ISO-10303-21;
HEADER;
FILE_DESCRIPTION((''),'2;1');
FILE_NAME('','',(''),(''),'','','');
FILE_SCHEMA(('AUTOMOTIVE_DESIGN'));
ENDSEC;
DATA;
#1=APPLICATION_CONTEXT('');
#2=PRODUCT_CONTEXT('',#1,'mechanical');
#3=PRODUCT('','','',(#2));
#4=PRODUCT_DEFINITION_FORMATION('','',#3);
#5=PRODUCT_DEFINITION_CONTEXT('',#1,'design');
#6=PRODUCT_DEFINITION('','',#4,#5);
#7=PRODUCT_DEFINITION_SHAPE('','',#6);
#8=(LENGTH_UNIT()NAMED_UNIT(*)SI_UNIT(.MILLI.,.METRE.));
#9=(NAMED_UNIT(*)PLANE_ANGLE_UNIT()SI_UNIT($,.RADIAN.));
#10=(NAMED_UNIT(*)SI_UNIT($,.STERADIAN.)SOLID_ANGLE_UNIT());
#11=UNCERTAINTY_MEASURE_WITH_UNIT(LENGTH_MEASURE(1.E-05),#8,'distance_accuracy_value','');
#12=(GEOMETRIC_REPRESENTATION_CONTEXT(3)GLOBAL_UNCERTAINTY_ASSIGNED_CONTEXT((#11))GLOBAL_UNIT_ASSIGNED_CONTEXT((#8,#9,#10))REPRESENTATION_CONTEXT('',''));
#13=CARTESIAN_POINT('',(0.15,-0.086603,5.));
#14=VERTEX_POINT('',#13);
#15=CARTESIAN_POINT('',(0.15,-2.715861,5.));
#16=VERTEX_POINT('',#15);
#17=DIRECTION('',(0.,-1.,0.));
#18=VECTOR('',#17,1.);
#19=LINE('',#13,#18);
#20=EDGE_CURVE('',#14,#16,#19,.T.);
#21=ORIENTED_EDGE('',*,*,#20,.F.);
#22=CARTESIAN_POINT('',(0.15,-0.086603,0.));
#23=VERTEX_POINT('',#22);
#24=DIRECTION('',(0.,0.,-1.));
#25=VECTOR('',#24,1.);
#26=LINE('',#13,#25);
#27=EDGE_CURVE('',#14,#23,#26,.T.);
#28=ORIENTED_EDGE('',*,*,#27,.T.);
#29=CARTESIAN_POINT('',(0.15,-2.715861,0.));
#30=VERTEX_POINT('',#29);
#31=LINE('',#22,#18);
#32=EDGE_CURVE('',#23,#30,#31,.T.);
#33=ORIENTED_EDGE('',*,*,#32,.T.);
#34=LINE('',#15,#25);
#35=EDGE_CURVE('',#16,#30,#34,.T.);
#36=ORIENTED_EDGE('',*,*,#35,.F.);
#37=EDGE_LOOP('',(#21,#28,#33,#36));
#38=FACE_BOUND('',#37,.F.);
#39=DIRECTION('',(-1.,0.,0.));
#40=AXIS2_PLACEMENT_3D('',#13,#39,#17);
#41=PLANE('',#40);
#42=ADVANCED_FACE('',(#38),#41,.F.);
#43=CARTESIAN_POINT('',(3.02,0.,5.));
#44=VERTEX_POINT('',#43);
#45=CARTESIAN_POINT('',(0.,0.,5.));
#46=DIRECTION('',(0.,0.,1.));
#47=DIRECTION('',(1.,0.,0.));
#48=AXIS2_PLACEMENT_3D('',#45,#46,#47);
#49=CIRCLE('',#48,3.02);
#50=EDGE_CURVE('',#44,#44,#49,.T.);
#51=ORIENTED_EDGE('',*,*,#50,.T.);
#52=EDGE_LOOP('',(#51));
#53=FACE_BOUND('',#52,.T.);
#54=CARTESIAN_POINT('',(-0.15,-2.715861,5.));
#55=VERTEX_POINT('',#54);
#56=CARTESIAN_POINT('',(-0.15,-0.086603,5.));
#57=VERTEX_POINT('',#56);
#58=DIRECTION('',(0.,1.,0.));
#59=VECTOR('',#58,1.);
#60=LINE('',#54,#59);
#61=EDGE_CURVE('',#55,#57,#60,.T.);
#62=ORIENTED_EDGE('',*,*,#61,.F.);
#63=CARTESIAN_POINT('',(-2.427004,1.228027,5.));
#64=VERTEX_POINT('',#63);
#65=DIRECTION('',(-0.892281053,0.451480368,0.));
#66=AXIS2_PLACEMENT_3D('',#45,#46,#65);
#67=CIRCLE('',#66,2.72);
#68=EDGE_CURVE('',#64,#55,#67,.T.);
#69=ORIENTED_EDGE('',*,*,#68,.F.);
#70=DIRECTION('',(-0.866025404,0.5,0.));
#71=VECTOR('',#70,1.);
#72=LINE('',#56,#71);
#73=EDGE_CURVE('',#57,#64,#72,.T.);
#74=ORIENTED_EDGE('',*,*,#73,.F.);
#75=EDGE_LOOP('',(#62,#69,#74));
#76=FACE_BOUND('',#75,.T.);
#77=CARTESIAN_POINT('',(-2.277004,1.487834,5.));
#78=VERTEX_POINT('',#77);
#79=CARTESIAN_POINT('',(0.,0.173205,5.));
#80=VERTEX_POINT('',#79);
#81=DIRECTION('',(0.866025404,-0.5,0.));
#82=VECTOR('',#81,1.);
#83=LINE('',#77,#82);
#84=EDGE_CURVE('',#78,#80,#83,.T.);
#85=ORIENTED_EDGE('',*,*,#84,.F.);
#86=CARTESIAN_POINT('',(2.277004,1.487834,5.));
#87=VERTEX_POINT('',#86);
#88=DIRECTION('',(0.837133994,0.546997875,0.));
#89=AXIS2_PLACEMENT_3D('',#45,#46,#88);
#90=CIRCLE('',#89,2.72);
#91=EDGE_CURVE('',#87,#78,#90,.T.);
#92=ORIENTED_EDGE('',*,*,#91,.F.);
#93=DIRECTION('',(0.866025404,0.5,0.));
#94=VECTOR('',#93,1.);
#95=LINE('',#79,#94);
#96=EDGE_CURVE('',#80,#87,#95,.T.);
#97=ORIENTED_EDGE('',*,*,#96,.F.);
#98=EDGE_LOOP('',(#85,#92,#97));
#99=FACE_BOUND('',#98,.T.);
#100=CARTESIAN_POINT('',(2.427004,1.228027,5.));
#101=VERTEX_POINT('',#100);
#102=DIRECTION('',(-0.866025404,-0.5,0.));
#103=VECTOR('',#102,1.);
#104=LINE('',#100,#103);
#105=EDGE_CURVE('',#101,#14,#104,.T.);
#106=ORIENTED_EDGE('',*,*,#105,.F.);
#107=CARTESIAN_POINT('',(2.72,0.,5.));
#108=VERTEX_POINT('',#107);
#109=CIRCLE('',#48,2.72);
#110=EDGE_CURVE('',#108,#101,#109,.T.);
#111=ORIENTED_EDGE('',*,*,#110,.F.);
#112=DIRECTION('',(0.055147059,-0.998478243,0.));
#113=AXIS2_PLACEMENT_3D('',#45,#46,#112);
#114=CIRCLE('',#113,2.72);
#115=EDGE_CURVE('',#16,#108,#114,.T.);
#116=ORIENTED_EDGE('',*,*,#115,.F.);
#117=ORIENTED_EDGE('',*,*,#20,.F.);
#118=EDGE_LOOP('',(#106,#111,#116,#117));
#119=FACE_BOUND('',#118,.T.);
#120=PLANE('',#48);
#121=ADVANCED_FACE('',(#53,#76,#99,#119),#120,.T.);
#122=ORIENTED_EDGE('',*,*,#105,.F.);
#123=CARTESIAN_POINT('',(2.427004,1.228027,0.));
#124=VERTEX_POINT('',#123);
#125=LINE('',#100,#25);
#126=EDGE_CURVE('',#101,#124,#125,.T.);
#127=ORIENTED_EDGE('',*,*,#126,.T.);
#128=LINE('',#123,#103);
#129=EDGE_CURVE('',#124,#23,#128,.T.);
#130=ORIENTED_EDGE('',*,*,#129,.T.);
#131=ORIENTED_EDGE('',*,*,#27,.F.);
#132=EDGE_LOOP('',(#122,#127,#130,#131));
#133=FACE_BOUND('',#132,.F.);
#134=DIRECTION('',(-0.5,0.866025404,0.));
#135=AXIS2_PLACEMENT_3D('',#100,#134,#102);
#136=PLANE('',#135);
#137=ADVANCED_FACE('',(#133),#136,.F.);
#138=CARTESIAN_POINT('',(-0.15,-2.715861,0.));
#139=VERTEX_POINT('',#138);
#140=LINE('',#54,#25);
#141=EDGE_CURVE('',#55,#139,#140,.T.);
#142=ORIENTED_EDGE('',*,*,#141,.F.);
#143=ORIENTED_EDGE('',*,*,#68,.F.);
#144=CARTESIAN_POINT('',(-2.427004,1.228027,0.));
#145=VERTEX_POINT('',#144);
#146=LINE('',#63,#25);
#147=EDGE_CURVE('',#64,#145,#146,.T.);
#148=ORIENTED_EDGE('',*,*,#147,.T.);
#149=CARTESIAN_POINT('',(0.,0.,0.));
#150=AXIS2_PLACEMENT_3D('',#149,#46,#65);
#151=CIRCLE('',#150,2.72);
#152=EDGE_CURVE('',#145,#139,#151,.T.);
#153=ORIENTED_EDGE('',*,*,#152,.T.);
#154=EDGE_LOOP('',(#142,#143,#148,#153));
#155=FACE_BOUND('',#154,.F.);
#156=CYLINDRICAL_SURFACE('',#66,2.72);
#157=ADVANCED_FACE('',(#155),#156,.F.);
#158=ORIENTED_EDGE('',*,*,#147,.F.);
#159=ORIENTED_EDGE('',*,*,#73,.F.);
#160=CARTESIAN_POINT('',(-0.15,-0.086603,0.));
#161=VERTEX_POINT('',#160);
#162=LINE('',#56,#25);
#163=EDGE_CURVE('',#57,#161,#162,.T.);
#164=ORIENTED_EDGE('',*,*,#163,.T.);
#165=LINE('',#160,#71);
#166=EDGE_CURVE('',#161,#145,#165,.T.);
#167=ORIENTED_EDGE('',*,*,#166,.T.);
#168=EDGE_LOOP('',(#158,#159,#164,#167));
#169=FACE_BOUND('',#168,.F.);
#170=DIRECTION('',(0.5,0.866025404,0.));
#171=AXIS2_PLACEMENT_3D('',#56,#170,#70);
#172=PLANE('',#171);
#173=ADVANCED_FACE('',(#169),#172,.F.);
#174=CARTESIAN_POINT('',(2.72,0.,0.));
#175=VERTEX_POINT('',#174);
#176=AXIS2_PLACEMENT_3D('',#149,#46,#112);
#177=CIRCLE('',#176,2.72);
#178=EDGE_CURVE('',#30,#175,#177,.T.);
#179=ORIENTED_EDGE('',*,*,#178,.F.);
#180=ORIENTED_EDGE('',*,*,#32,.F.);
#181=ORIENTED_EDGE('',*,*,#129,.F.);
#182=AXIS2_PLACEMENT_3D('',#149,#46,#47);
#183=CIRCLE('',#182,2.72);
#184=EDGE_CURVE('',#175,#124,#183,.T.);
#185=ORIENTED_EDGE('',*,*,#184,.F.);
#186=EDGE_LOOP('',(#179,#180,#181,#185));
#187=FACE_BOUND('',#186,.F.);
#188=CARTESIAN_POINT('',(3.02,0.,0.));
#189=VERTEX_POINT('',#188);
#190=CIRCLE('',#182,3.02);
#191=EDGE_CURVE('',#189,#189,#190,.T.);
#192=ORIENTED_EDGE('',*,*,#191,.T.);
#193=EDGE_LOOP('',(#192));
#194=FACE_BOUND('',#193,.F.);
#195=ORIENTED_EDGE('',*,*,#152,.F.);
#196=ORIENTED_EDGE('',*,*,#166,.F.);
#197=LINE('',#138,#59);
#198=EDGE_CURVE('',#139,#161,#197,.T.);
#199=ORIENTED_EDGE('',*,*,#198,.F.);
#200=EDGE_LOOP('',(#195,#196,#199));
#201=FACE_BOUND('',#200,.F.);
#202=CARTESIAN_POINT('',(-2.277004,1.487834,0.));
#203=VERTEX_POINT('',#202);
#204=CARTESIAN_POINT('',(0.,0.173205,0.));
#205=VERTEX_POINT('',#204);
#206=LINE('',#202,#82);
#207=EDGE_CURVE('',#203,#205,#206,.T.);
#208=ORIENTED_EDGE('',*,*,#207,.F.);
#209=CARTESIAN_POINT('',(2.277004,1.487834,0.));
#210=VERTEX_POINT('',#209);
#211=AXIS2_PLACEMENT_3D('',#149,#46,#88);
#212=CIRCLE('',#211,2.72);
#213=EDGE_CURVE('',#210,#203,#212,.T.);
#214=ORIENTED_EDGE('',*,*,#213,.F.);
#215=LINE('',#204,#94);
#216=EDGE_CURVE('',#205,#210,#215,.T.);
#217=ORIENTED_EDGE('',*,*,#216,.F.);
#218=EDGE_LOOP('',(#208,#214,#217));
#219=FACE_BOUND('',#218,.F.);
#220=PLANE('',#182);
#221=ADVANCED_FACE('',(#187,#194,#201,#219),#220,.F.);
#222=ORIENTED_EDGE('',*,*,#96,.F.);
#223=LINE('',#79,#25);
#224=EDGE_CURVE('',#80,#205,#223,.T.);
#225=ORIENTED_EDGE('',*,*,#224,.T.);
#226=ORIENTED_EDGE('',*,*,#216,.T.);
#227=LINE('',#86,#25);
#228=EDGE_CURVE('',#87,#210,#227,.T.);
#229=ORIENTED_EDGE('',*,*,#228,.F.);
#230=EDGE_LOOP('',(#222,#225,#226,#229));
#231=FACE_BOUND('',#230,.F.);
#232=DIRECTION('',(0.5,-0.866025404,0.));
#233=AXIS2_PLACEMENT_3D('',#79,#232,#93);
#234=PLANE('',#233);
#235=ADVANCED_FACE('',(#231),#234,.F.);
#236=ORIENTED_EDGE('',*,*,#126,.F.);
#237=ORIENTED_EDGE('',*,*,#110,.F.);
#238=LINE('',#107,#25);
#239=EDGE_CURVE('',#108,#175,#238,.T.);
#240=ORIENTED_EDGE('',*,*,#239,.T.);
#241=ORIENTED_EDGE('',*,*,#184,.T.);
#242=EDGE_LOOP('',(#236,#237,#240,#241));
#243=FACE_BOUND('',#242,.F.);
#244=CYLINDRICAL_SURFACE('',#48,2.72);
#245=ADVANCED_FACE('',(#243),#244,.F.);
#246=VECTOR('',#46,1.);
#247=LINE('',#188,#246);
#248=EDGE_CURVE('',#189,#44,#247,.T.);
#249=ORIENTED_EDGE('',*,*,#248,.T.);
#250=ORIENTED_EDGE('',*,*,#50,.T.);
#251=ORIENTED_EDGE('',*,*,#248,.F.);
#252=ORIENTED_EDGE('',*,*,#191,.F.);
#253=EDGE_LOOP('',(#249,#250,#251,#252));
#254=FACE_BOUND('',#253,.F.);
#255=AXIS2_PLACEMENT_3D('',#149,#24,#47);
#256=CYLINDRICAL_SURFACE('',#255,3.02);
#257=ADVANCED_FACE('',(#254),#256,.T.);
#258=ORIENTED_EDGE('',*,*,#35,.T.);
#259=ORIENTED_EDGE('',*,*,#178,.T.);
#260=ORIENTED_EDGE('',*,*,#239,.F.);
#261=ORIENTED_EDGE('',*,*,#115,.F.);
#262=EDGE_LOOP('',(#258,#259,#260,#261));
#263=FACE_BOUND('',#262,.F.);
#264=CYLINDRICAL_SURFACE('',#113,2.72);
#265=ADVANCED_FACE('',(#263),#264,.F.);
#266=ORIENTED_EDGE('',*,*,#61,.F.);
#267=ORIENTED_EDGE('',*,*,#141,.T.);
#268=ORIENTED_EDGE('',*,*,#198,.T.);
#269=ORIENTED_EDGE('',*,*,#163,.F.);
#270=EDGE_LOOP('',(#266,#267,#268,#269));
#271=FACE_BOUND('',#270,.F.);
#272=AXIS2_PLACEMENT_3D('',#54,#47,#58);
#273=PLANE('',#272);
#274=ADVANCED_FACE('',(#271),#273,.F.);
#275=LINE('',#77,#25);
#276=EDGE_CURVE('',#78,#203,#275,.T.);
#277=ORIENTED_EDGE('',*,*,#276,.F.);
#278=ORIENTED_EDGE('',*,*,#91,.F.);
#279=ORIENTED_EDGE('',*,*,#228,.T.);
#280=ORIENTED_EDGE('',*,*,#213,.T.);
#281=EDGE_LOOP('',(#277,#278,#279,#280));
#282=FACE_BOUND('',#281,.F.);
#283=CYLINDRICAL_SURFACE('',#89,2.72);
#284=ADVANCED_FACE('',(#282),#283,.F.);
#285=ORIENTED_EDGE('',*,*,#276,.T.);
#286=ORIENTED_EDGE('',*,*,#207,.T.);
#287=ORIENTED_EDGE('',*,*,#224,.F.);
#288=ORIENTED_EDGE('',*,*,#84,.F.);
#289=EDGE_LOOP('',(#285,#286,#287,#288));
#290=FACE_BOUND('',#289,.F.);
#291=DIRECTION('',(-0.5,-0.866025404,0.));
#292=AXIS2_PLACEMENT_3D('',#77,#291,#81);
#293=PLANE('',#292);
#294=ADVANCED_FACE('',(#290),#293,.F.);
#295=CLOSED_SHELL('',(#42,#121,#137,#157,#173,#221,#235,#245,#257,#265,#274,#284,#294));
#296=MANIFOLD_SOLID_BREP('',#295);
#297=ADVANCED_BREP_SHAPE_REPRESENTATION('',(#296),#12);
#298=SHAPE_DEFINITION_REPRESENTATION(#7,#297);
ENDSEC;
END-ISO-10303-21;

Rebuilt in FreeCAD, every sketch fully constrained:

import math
import FreeCAD as App
import Part
import Sketcher

V = App.Vector
Q = App.Units.Quantity

doc = App.newDocument("Part")
body = doc.addObject("PartDesign::Body", "Body")

sketch1 = body.newObject("Sketcher::SketchObject", "Sketch")
sketch1.AttachmentSupport = (doc.getObject("XY_Plane"), [""])
sketch1.MapMode = "FlatFace"
sketch1.addGeometry(Part.Circle(V(0, 0, 0), V(0, 0, 1), 3), False)
sketch1.addConstraint([
    Sketcher.Constraint("Coincident", 0, 3, -1, 1),
    Sketcher.Constraint("Diameter", 0, Q("6.04 mm")),
])
pad1 = body.newObject("PartDesign::Pad", "Pad")
pad1.Profile = sketch1
pad1.Length = 5

sketch2 = body.newObject("Sketcher::SketchObject", "Sketch001")
sketch2.AttachmentSupport = (doc.getObject("XY_Plane"), [""])
sketch2.MapMode = "FlatFace"
sketch2.AttachmentOffset = App.Placement(V(0, 0, 5), App.Rotation())
sketch2.addGeometry([
    Part.ArcOfCircle(Part.Circle(V(0, 0, 0), V(0, 0, 1), 2.7), math.radians(153), math.radians(267)),
    Part.LineSegment(V(-0.1, -2.7, 0), V(-0.1, -0.1, 0)),
    Part.LineSegment(V(-0.1, -0.1, 0), V(-2.4, 1.2, 0)),
    Part.LineSegment(V(0, 0.2, 0), V(2.3, 1.5, 0)),
    Part.ArcOfCircle(Part.Circle(V(0, 0, 0), V(0, 0, 1), 2.7), math.radians(33), math.radians(147)),
    Part.LineSegment(V(-2.3, 1.5, 0), V(0, 0.2, 0)),
    Part.ArcOfCircle(Part.Circle(V(0, 0, 0), V(0, 0, 1), 2.7), math.radians(-87), math.radians(0)),
    Part.ArcOfCircle(Part.Circle(V(0, 0, 0), V(0, 0, 1), 2.7), math.radians(0), math.radians(27)),
    Part.LineSegment(V(2.4, 1.2, 0), V(0.1, -0.1, 0)),
    Part.LineSegment(V(0.1, -0.1, 0), V(0.1, -2.7, 0)),
], False)
sketch2.addConstraint([
    Sketcher.Constraint("Coincident", 0, 2, 1, 1),
    Sketcher.Constraint("Coincident", 1, 2, 2, 1),
    Sketcher.Constraint("Coincident", 2, 2, 0, 1),
    Sketcher.Constraint("Coincident", 3, 2, 4, 1),
    Sketcher.Constraint("Coincident", 4, 2, 5, 1),
    Sketcher.Constraint("Coincident", 5, 2, 3, 1),
    Sketcher.Constraint("Tangent", 6, 2, 7, 1),
    Sketcher.Constraint("Coincident", 7, 2, 8, 1),
    Sketcher.Constraint("Coincident", 8, 2, 9, 1),
    Sketcher.Constraint("Coincident", 9, 2, 6, 1),
    Sketcher.Constraint("Vertical", 1),
    Sketcher.Constraint("Vertical", 9),
    Sketcher.Constraint("Coincident", 0, 3, -1, 1),
    Sketcher.Constraint("Coincident", 4, 3, -1, 1),
    Sketcher.Constraint("Coincident", 6, 3, -1, 1),
    Sketcher.Constraint("Equal", 0, 4),
    Sketcher.Constraint("Equal", 4, 6),
    Sketcher.Constraint("Equal", 6, 7),
    Sketcher.Constraint("Symmetric", 1, 2, 8, 2, -2),
    Sketcher.Constraint("PointOnObject", 5, 2, -2),
    Sketcher.Constraint("PointOnObject", 6, 2, -1),
    Sketcher.Constraint("Parallel", 2, 5),
    Sketcher.Constraint("Parallel", 3, 8),
    Sketcher.Constraint("Horizontal", 3, 2, 4, 2),
    Sketcher.Constraint("Equal", 2, 3),
    Sketcher.Constraint("Angle", 2, Q("150 deg")),
    Sketcher.Constraint("Radius", 0, Q("2.72 mm")),
    Sketcher.Constraint("DistanceX", 0, 2, 9, 2, Q("0.3 mm")),
    Sketcher.Constraint("DistanceY", 1, 1, 1, 2, Q("2.629258 mm")),
])
pocket1 = body.newObject("PartDesign::Pocket", "Pocket")
pocket1.Profile = sketch2
pocket1.Length = 5

doc.recompute()
